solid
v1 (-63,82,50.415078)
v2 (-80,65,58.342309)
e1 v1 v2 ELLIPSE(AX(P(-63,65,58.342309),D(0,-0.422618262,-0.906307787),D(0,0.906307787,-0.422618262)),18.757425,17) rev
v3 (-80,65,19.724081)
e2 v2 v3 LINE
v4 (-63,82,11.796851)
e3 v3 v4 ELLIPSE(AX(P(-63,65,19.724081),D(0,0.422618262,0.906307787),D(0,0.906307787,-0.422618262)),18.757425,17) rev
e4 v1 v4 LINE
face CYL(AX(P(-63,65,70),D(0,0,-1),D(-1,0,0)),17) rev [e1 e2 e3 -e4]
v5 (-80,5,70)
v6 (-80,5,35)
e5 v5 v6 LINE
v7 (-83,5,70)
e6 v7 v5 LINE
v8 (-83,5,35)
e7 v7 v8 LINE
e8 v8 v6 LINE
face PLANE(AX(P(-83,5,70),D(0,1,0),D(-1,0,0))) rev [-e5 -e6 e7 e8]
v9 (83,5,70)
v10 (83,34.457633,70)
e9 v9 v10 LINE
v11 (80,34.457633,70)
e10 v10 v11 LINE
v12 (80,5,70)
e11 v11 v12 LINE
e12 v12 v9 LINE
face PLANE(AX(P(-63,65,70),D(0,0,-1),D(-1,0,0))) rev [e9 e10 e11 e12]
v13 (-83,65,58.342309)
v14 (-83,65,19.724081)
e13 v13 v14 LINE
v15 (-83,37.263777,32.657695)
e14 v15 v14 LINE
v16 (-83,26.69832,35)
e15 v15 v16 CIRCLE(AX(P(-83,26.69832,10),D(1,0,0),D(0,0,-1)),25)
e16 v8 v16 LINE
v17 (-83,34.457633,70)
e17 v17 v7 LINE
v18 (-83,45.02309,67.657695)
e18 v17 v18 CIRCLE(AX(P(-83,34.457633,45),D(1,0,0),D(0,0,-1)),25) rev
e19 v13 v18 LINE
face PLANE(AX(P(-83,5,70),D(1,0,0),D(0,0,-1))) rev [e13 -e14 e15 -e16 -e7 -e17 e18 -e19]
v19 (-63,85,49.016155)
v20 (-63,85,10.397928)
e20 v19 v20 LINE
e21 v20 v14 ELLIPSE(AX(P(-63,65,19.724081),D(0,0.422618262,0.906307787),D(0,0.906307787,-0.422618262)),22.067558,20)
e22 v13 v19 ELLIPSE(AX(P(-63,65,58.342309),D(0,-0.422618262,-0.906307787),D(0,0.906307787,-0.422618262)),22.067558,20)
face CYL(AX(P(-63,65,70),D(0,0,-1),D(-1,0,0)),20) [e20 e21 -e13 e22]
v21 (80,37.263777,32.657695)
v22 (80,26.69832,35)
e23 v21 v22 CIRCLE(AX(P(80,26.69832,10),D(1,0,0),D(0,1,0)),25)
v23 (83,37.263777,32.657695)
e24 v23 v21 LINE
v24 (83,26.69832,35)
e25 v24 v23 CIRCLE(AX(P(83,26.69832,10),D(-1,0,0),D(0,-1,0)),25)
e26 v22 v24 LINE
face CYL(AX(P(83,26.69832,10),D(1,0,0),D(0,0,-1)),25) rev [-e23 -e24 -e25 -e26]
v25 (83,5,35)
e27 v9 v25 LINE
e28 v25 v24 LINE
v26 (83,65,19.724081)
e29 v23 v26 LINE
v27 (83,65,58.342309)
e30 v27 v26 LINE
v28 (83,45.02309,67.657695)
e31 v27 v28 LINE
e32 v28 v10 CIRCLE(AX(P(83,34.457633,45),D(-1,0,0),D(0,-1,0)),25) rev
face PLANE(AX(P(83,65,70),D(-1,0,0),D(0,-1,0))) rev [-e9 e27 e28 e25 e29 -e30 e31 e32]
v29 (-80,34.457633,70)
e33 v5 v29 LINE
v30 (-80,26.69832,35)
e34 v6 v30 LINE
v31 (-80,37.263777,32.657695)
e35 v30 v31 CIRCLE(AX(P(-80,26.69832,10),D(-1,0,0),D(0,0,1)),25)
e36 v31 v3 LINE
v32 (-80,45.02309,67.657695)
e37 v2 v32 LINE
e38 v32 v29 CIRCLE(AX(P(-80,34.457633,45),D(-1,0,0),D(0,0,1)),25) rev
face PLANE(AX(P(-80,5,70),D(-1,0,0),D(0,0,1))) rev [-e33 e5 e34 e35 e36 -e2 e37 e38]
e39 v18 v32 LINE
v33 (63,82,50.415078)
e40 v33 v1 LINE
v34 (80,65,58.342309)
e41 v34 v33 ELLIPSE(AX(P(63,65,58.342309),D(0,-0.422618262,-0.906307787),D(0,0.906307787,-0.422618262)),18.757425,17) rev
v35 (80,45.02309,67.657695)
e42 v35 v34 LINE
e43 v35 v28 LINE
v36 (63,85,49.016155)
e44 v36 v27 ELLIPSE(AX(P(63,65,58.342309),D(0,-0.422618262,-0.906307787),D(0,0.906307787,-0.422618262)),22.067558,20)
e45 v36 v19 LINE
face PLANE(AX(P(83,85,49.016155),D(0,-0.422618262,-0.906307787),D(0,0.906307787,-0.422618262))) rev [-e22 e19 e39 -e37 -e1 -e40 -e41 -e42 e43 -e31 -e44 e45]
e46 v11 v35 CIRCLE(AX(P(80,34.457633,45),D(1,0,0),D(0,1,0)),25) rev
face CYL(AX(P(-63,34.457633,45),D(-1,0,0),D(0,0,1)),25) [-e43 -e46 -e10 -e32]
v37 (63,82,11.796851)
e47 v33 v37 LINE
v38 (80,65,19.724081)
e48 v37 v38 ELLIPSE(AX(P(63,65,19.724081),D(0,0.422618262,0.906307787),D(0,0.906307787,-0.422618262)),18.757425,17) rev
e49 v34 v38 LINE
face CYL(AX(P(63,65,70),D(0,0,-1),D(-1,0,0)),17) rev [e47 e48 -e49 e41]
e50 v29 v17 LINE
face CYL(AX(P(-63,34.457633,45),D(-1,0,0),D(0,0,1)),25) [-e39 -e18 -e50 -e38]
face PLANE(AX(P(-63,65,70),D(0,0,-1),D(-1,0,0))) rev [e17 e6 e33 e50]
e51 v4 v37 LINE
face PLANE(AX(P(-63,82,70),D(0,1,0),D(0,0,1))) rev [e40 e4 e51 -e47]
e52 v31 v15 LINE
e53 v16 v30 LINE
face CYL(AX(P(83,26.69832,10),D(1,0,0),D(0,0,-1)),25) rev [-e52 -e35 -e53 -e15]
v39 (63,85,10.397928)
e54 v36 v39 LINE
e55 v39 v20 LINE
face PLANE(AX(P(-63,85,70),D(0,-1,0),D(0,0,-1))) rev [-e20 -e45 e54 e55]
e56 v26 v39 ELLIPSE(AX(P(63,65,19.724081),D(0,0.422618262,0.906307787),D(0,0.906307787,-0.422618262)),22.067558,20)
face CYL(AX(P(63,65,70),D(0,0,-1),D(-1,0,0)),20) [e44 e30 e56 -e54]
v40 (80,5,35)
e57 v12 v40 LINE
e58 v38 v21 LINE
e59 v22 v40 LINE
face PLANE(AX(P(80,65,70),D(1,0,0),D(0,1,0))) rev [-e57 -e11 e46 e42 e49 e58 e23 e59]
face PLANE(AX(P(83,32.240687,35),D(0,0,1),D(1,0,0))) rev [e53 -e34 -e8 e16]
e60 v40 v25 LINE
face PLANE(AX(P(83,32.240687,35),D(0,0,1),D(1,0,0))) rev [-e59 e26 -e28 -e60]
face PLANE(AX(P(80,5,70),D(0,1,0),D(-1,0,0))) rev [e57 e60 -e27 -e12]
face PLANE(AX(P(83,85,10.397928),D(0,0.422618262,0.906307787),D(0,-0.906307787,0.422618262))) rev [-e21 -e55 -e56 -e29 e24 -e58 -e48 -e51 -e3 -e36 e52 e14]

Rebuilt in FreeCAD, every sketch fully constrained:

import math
import FreeCAD as App
import Part
import Sketcher
from FreeCAD import Vector
Q = App.Units.Quantity


def edges_at(feature, points):
    """Names of the edges that pass closest to the given points."""
    edges = feature.Shape.Edges
    near = lambda p: min(range(len(edges)), key=lambda i: edges[i].distToShape(Part.Vertex(*p))[0])
    return sorted({f"Edge{near(p) + 1}" for p in points})

doc = App.newDocument("Part")
body = doc.addObject("PartDesign::Body", "Body")

# Sketch on XY plane
sketch1 = body.newObject("Sketcher::SketchObject", "Sketch")
sketch1.AttachmentSupport = (doc.getObject("XY_Plane"), [""])
sketch1.MapMode = "FlatFace"
sketch1.addGeometry([
    Part.LineSegment(Vector(-83, 65, 0), Vector(-83, 5, 0)),  # 0
    Part.LineSegment(Vector(-83, 5, 0), Vector(-80, 5, 0)),  # 1
    Part.LineSegment(Vector(-80, 5, 0), Vector(-80, 65, 0)),  # 2
    Part.ArcOfCircle(Part.Circle(Vector(-63, 65, 0), Vector(0, 0, 1), 17), math.radians(90), math.radians(180)),  # 3
    Part.LineSegment(Vector(-63, 82, 0), Vector(63, 82, 0)),  # 4
    Part.ArcOfCircle(Part.Circle(Vector(63, 65, 0), Vector(0, 0, 1), 17), math.radians(0), math.radians(90)),  # 5
    Part.LineSegment(Vector(80, 65, 0), Vector(80, 5, 0)),  # 6
    Part.LineSegment(Vector(80, 5, 0), Vector(83, 5, 0)),  # 7
    Part.LineSegment(Vector(83, 5, 0), Vector(83, 65, 0)),  # 8
    Part.ArcOfCircle(Part.Circle(Vector(63, 65, 0), Vector(0, 0, 1), 20), math.radians(0), math.radians(90)),  # 9
    Part.LineSegment(Vector(63, 85, 0), Vector(-63, 85, 0)),  # 10
    Part.ArcOfCircle(Part.Circle(Vector(-63, 65, 0), Vector(0, 0, 1), 20), math.radians(90), math.radians(180)),  # 11
], False)
sketch1.addConstraint([
    Sketcher.Constraint("Coincident", 0, 2, 1, 1),
    Sketcher.Constraint("Coincident", 1, 2, 2, 1),
    Sketcher.Constraint("Tangent", 2, 2, 3, 2),
    Sketcher.Constraint("Tangent", 3, 1, 4, 1),
    Sketcher.Constraint("Tangent", 4, 2, 5, 2),
    Sketcher.Constraint("Tangent", 5, 1, 6, 1),
    Sketcher.Constraint("Coincident", 6, 2, 7, 1),
    Sketcher.Constraint("Coincident", 7, 2, 8, 1),
    Sketcher.Constraint("Tangent", 8, 2, 9, 1),
    Sketcher.Constraint("Tangent", 9, 2, 10, 1),
    Sketcher.Constraint("Tangent", 10, 2, 11, 1),
    Sketcher.Constraint("Tangent", 11, 2, 0, 1),
    Sketcher.Constraint("Vertical", 0),
    Sketcher.Constraint("Horizontal", 1),
    Sketcher.Constraint("Vertical", 2),
    Sketcher.Constraint("Horizontal", 4),
    Sketcher.Constraint("Vertical", 6),
    Sketcher.Constraint("Horizontal", 7),
    Sketcher.Constraint("Vertical", 8),
    Sketcher.Constraint("Horizontal", 10),
    Sketcher.Constraint("Coincident", 9, 3, 5, 3),
    Sketcher.Constraint("Coincident", 11, 3, 3, 3),
    Sketcher.Constraint("Equal", 3, 5),
    Sketcher.Constraint("Symmetric", 1, 2, 6, 2, -2),
    Sketcher.Constraint("Radius", 3, 17.0),
    Sketcher.Constraint("Radius", 9, 20.0),
    Sketcher.Constraint("DistanceX", 4, 1, 4, 2, 126.0),
    Sketcher.Constraint("DistanceY", 0, 2, 0, 1, 60.0),
    Sketcher.Constraint("DistanceY", -1, 1, 3, 3, 65.0),
])
pad1 = body.newObject("PartDesign::Pad", "Pad")
pad1.Profile = sketch1
pad1.Length = 70

# Sketch on YZ plane
sketch2 = body.newObject("Sketcher::SketchObject", "Sketch001")
sketch2.AttachmentSupport = (doc.getObject("YZ_Plane"), [""])
sketch2.MapMode = "FlatFace"
sketch2.AttachmentOffset = App.Placement(Vector(0, 0, -83), App.Rotation())
sketch2.addGeometry([
    Part.LineSegment(Vector(85, 49, 0), Vector(40, 70, 0)),  # 0
    Part.LineSegment(Vector(40, 70, 0), Vector(85, 70, 0)),  # 1
    Part.LineSegment(Vector(85, 70, 0), Vector(85, 49, 0)),  # 2
    Part.LineSegment(Vector(32, 35, 0), Vector(85, 10, 0)),  # 3
    Part.LineSegment(Vector(85, 10, 0), Vector(85, 0, 0)),  # 4
    Part.LineSegment(Vector(85, 0, 0), Vector(5, 0, 0)),  # 5
    Part.LineSegment(Vector(5, 0, 0), Vector(5, 35, 0)),  # 6
    Part.LineSegment(Vector(5, 35, 0), Vector(32, 35, 0)),  # 7
], False)
sketch2.addConstraint([
    Sketcher.Constraint("Coincident", 0, 2, 1, 1),
    Sketcher.Constraint("Coincident", 1, 2, 2, 1),
    Sketcher.Constraint("Coincident", 2, 2, 0, 1),
    Sketcher.Constraint("Coincident", 3, 2, 4, 1),
    Sketcher.Constraint("Coincident", 4, 2, 5, 1),
    Sketcher.Constraint("Coincident", 5, 2, 6, 1),
    Sketcher.Constraint("Coincident", 6, 2, 7, 1),
    Sketcher.Constraint("Coincident", 7, 2, 3, 1),
    Sketcher.Constraint("Horizontal", 1),
    Sketcher.Constraint("Vertical", 2),
    Sketcher.Constraint("Vertical", 4),
    Sketcher.Constraint("Horizontal", 5),
    Sketcher.Constraint("Vertical", 6),
    Sketcher.Constraint("Horizontal", 7),
    Sketcher.Constraint("PointOnObject", 4, 2, -1),
    Sketcher.Constraint("Parallel", 0, 3),
    Sketcher.Constraint("Vertical", 2, 2, 3, 2),
    Sketcher.Constraint("DistanceX", 1, 1, 1, 2, 45.0),
    Sketcher.Constraint("DistanceY", 6, 1, 6, 2, 35.0),
    Sketcher.Constraint("Angle", 0, Q("155 deg")),
    Sketcher.Constraint("DistanceX", -1, 1, 0, 2, 40.0),
    Sketcher.Constraint("DistanceY", -1, 1, 0, 2, 70.0),
    Sketcher.Constraint("DistanceY", 4, 2, 4, 1, 10.397928),
    Sketcher.Constraint("DistanceX", 5, 2, 5, 1, 80.129116),
])
pocket1 = body.newObject("PartDesign::Pocket", "Pocket")
pocket1.Profile = sketch2
pocket1.Type = "ThroughAll"
pocket1.Reversed = True
doc.recompute()

fillet = body.newObject("PartDesign::Fillet", "Fillet")
fillet.Base = (pocket1, edges_at(pocket1, [
    (-81.5, 40, 70),
    (81.5, 40, 70),
    (-81.5, 32.241, 35),
    (81.5, 32.241, 35),
]))
fillet.Radius = 25

doc.recompute()
